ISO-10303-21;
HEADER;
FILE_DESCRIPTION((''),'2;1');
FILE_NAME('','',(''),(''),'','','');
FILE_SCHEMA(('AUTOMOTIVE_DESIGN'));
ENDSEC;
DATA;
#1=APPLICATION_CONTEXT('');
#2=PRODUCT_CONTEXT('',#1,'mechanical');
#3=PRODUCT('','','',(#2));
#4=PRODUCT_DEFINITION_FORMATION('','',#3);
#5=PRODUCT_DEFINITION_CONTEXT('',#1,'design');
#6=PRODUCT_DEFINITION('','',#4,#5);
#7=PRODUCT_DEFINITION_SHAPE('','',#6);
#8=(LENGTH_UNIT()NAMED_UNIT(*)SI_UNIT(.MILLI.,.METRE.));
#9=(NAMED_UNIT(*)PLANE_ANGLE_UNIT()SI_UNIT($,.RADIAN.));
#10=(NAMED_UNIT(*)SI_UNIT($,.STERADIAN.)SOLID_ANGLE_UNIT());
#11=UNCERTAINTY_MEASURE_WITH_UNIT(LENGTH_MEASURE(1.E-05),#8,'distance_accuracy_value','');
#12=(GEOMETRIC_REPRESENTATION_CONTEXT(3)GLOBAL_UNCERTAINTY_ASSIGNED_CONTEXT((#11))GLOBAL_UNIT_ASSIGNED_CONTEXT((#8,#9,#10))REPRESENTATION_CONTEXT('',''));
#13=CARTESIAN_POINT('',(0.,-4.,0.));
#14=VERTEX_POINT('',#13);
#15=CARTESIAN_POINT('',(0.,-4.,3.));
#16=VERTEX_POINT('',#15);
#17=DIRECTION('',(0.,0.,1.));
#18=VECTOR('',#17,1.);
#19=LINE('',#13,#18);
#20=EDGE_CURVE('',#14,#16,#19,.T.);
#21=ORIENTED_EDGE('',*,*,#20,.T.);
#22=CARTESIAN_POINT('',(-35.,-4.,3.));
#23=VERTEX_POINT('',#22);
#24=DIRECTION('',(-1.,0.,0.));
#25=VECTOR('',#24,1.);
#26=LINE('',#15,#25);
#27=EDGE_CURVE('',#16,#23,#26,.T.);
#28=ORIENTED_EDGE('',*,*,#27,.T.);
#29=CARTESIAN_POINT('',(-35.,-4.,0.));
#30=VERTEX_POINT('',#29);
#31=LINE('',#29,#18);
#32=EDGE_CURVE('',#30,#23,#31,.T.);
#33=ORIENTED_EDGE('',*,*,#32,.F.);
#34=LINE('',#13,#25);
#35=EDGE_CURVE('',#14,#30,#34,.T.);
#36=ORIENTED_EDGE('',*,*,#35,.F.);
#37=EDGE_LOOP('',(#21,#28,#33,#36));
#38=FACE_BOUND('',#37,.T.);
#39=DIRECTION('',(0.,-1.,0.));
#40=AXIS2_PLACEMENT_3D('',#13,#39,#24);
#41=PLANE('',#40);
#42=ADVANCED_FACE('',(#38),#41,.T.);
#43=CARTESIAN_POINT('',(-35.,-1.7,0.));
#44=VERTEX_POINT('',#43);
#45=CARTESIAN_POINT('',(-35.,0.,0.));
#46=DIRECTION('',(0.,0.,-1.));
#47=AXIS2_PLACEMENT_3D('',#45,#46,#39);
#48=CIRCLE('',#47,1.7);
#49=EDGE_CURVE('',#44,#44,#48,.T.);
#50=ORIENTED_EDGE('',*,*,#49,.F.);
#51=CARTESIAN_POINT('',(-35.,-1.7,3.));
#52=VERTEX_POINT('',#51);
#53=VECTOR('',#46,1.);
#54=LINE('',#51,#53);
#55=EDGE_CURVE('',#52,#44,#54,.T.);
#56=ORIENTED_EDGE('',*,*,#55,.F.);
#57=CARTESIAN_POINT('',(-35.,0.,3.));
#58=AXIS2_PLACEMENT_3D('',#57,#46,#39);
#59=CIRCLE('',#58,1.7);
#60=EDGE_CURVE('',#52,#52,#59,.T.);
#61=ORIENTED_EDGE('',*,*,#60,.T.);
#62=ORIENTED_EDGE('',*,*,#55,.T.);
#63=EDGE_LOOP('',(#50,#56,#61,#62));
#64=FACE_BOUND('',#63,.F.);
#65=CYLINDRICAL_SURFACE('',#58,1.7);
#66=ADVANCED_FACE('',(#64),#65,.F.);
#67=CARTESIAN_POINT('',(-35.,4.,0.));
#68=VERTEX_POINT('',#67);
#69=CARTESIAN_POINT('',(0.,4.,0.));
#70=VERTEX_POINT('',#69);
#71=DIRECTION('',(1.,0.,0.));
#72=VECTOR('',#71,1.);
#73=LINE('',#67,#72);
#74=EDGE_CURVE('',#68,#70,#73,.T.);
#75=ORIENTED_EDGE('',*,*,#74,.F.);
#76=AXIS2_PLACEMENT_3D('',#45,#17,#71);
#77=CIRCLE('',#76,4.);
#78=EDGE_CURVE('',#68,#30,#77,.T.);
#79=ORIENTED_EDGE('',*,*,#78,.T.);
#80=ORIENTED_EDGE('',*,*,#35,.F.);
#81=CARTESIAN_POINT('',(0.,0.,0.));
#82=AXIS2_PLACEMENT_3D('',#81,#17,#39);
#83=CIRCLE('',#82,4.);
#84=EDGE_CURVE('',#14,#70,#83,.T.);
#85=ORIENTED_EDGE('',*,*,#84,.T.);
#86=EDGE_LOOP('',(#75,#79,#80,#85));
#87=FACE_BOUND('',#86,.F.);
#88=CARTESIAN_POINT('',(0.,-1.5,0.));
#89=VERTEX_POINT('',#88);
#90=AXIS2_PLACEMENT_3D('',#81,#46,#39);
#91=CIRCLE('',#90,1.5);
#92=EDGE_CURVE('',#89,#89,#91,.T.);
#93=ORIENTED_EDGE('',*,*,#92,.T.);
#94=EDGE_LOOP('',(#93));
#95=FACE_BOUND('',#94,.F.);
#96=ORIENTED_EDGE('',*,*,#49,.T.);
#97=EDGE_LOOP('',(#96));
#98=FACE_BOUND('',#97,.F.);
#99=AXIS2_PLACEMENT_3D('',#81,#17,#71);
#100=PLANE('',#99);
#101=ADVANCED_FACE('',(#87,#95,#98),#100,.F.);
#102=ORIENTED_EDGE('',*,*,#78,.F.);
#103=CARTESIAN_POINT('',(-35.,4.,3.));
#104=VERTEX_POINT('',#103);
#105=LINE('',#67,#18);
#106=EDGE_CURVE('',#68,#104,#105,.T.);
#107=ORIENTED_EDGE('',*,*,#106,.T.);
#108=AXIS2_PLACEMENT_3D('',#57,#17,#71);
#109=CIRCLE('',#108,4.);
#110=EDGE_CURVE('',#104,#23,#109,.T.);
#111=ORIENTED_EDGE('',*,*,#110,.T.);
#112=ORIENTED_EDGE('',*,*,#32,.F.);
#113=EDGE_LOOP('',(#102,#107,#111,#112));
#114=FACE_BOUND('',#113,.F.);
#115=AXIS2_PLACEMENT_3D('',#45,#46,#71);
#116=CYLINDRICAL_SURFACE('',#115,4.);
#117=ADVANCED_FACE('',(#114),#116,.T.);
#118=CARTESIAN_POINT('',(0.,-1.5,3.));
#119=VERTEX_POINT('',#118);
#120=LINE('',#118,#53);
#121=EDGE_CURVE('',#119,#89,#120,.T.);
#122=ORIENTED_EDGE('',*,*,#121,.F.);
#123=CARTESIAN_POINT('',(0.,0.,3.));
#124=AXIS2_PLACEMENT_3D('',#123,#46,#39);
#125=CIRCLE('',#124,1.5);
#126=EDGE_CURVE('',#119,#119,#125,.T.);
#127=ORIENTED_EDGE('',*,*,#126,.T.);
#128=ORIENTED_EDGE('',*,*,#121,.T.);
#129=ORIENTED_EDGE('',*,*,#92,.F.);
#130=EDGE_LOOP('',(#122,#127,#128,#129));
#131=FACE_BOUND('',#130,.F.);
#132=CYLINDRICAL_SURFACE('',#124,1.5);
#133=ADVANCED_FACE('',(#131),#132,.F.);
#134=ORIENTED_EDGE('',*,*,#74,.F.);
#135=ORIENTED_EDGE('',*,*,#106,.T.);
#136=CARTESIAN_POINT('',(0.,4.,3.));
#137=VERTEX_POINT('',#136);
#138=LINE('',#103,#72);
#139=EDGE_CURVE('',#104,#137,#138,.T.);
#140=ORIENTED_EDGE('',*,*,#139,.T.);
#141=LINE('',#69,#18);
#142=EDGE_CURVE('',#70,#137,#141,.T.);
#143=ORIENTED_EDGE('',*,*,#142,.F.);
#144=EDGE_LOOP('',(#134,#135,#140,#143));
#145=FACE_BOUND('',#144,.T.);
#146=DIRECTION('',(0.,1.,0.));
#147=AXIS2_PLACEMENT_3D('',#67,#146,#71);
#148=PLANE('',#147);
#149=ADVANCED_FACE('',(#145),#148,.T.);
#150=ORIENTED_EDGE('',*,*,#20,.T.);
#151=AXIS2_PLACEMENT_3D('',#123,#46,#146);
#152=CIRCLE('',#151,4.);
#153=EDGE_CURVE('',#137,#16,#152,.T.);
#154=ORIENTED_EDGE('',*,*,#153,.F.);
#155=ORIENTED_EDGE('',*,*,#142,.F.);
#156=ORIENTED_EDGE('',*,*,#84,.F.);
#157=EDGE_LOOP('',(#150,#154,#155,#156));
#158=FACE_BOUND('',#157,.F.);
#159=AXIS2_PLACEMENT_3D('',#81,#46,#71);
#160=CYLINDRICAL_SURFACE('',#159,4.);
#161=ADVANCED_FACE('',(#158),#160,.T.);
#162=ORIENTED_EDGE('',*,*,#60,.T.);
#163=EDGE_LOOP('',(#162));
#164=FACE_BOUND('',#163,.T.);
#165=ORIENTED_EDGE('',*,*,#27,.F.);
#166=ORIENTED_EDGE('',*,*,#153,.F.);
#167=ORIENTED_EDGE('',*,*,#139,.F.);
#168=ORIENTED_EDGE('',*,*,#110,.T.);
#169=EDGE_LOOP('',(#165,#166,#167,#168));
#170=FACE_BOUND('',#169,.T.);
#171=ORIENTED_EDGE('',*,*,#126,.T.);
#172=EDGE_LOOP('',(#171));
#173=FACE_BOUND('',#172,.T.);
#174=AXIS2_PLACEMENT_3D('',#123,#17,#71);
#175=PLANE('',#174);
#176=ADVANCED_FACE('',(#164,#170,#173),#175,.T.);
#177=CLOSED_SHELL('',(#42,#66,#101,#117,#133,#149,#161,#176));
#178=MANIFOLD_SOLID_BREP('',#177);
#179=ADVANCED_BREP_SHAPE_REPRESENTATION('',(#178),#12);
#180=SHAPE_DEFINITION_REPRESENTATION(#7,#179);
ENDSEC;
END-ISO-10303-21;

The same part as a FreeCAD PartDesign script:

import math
import FreeCAD as App
import Part
import Sketcher
from FreeCAD import Vector
Q = App.Units.Quantity

doc = App.newDocument("Part")
body = doc.addObject("PartDesign::Body", "Body")

sketch1 = body.newObject("Sketcher::SketchObject", "Sketch")
sketch1.AttachmentSupport = (doc.getObject("XY_Plane"), [""])
sketch1.MapMode = "FlatFace"
sketch1.addGeometry([
    Part.ArcOfCircle(Part.Circle(Vector(0, 0, 0), Vector(0, 0, 1), 4), math.radians(-90), math.radians(90)),
    Part.LineSegment(Vector(0, 4, 0), Vector(-35, 4, 0)),
    Part.ArcOfCircle(Part.Circle(Vector(-35, 0, 0), Vector(0, 0, 1), 4), math.radians(90), math.radians(270)),
    Part.LineSegment(Vector(-35, -4, 0), Vector(0, -4, 0)),
], False)
sketch1.addConstraint([
    Sketcher.Constraint("Tangent", 0, 2, 1, 1),
    Sketcher.Constraint("Tangent", 1, 2, 2, 1),
    Sketcher.Constraint("Tangent", 2, 2, 3, 1),
    Sketcher.Constraint("Tangent", 3, 2, 0, 1),
    Sketcher.Constraint("Horizontal", 1),
    Sketcher.Constraint("Horizontal", 3),
    Sketcher.Constraint("Coincident", 0, 3, -1, 1),
    Sketcher.Constraint("Radius", 0, Q("4 mm")),
    Sketcher.Constraint("DistanceX", 1, 2, 1, 1, Q("35 mm")),
])
pad1 = body.newObject("PartDesign::Pad", "Pad")
pad1.Profile = sketch1
pad1.Length = 3

sketch2 = body.newObject("Sketcher::SketchObject", "Sketch001")
sketch2.AttachmentSupport = (doc.getObject("XY_Plane"), [""])
sketch2.MapMode = "FlatFace"
sketch2.AttachmentOffset = App.Placement(Vector(0, 0, 3), App.Rotation())
sketch2.addGeometry(Part.Circle(Vector(0, 0, 0), Vector(0, 0, 1), 1.5), False)
sketch2.addConstraint([
    Sketcher.Constraint("Coincident", 0, 3, -1, 1),
    Sketcher.Constraint("Diameter", 0, Q("3 mm")),
])
doc.recompute()
hole = body.newObject("PartDesign::Hole", "Hole")
hole.Profile = sketch2
hole.ThreadType = "None"
hole.Diameter = 3
hole.DepthType = "ThroughAll"

sketch3 = body.newObject("Sketcher::SketchObject", "Sketch002")
sketch3.AttachmentSupport = (doc.getObject("XY_Plane"), [""])
sketch3.MapMode = "FlatFace"
sketch3.AttachmentOffset = App.Placement(Vector(0, 0, 3), App.Rotation())
sketch3.addGeometry(Part.Circle(Vector(-35, 0, 0), Vector(0, 0, 1), 1.7), False)
sketch3.addConstraint([
    Sketcher.Constraint("PointOnObject", 0, 3, -1),
    Sketcher.Constraint("Diameter", 0, Q("3.4 mm")),
    Sketcher.Constraint("DistanceX", 0, 3, -1, 1, Q("35 mm")),
])
doc.recompute()
hole2 = body.newObject("PartDesign::Hole", "Hole001")
hole2.Profile = sketch3
hole2.ThreadType = "None"
hole2.Diameter = 3.4
hole2.DepthType = "ThroughAll"

doc.recompute()
